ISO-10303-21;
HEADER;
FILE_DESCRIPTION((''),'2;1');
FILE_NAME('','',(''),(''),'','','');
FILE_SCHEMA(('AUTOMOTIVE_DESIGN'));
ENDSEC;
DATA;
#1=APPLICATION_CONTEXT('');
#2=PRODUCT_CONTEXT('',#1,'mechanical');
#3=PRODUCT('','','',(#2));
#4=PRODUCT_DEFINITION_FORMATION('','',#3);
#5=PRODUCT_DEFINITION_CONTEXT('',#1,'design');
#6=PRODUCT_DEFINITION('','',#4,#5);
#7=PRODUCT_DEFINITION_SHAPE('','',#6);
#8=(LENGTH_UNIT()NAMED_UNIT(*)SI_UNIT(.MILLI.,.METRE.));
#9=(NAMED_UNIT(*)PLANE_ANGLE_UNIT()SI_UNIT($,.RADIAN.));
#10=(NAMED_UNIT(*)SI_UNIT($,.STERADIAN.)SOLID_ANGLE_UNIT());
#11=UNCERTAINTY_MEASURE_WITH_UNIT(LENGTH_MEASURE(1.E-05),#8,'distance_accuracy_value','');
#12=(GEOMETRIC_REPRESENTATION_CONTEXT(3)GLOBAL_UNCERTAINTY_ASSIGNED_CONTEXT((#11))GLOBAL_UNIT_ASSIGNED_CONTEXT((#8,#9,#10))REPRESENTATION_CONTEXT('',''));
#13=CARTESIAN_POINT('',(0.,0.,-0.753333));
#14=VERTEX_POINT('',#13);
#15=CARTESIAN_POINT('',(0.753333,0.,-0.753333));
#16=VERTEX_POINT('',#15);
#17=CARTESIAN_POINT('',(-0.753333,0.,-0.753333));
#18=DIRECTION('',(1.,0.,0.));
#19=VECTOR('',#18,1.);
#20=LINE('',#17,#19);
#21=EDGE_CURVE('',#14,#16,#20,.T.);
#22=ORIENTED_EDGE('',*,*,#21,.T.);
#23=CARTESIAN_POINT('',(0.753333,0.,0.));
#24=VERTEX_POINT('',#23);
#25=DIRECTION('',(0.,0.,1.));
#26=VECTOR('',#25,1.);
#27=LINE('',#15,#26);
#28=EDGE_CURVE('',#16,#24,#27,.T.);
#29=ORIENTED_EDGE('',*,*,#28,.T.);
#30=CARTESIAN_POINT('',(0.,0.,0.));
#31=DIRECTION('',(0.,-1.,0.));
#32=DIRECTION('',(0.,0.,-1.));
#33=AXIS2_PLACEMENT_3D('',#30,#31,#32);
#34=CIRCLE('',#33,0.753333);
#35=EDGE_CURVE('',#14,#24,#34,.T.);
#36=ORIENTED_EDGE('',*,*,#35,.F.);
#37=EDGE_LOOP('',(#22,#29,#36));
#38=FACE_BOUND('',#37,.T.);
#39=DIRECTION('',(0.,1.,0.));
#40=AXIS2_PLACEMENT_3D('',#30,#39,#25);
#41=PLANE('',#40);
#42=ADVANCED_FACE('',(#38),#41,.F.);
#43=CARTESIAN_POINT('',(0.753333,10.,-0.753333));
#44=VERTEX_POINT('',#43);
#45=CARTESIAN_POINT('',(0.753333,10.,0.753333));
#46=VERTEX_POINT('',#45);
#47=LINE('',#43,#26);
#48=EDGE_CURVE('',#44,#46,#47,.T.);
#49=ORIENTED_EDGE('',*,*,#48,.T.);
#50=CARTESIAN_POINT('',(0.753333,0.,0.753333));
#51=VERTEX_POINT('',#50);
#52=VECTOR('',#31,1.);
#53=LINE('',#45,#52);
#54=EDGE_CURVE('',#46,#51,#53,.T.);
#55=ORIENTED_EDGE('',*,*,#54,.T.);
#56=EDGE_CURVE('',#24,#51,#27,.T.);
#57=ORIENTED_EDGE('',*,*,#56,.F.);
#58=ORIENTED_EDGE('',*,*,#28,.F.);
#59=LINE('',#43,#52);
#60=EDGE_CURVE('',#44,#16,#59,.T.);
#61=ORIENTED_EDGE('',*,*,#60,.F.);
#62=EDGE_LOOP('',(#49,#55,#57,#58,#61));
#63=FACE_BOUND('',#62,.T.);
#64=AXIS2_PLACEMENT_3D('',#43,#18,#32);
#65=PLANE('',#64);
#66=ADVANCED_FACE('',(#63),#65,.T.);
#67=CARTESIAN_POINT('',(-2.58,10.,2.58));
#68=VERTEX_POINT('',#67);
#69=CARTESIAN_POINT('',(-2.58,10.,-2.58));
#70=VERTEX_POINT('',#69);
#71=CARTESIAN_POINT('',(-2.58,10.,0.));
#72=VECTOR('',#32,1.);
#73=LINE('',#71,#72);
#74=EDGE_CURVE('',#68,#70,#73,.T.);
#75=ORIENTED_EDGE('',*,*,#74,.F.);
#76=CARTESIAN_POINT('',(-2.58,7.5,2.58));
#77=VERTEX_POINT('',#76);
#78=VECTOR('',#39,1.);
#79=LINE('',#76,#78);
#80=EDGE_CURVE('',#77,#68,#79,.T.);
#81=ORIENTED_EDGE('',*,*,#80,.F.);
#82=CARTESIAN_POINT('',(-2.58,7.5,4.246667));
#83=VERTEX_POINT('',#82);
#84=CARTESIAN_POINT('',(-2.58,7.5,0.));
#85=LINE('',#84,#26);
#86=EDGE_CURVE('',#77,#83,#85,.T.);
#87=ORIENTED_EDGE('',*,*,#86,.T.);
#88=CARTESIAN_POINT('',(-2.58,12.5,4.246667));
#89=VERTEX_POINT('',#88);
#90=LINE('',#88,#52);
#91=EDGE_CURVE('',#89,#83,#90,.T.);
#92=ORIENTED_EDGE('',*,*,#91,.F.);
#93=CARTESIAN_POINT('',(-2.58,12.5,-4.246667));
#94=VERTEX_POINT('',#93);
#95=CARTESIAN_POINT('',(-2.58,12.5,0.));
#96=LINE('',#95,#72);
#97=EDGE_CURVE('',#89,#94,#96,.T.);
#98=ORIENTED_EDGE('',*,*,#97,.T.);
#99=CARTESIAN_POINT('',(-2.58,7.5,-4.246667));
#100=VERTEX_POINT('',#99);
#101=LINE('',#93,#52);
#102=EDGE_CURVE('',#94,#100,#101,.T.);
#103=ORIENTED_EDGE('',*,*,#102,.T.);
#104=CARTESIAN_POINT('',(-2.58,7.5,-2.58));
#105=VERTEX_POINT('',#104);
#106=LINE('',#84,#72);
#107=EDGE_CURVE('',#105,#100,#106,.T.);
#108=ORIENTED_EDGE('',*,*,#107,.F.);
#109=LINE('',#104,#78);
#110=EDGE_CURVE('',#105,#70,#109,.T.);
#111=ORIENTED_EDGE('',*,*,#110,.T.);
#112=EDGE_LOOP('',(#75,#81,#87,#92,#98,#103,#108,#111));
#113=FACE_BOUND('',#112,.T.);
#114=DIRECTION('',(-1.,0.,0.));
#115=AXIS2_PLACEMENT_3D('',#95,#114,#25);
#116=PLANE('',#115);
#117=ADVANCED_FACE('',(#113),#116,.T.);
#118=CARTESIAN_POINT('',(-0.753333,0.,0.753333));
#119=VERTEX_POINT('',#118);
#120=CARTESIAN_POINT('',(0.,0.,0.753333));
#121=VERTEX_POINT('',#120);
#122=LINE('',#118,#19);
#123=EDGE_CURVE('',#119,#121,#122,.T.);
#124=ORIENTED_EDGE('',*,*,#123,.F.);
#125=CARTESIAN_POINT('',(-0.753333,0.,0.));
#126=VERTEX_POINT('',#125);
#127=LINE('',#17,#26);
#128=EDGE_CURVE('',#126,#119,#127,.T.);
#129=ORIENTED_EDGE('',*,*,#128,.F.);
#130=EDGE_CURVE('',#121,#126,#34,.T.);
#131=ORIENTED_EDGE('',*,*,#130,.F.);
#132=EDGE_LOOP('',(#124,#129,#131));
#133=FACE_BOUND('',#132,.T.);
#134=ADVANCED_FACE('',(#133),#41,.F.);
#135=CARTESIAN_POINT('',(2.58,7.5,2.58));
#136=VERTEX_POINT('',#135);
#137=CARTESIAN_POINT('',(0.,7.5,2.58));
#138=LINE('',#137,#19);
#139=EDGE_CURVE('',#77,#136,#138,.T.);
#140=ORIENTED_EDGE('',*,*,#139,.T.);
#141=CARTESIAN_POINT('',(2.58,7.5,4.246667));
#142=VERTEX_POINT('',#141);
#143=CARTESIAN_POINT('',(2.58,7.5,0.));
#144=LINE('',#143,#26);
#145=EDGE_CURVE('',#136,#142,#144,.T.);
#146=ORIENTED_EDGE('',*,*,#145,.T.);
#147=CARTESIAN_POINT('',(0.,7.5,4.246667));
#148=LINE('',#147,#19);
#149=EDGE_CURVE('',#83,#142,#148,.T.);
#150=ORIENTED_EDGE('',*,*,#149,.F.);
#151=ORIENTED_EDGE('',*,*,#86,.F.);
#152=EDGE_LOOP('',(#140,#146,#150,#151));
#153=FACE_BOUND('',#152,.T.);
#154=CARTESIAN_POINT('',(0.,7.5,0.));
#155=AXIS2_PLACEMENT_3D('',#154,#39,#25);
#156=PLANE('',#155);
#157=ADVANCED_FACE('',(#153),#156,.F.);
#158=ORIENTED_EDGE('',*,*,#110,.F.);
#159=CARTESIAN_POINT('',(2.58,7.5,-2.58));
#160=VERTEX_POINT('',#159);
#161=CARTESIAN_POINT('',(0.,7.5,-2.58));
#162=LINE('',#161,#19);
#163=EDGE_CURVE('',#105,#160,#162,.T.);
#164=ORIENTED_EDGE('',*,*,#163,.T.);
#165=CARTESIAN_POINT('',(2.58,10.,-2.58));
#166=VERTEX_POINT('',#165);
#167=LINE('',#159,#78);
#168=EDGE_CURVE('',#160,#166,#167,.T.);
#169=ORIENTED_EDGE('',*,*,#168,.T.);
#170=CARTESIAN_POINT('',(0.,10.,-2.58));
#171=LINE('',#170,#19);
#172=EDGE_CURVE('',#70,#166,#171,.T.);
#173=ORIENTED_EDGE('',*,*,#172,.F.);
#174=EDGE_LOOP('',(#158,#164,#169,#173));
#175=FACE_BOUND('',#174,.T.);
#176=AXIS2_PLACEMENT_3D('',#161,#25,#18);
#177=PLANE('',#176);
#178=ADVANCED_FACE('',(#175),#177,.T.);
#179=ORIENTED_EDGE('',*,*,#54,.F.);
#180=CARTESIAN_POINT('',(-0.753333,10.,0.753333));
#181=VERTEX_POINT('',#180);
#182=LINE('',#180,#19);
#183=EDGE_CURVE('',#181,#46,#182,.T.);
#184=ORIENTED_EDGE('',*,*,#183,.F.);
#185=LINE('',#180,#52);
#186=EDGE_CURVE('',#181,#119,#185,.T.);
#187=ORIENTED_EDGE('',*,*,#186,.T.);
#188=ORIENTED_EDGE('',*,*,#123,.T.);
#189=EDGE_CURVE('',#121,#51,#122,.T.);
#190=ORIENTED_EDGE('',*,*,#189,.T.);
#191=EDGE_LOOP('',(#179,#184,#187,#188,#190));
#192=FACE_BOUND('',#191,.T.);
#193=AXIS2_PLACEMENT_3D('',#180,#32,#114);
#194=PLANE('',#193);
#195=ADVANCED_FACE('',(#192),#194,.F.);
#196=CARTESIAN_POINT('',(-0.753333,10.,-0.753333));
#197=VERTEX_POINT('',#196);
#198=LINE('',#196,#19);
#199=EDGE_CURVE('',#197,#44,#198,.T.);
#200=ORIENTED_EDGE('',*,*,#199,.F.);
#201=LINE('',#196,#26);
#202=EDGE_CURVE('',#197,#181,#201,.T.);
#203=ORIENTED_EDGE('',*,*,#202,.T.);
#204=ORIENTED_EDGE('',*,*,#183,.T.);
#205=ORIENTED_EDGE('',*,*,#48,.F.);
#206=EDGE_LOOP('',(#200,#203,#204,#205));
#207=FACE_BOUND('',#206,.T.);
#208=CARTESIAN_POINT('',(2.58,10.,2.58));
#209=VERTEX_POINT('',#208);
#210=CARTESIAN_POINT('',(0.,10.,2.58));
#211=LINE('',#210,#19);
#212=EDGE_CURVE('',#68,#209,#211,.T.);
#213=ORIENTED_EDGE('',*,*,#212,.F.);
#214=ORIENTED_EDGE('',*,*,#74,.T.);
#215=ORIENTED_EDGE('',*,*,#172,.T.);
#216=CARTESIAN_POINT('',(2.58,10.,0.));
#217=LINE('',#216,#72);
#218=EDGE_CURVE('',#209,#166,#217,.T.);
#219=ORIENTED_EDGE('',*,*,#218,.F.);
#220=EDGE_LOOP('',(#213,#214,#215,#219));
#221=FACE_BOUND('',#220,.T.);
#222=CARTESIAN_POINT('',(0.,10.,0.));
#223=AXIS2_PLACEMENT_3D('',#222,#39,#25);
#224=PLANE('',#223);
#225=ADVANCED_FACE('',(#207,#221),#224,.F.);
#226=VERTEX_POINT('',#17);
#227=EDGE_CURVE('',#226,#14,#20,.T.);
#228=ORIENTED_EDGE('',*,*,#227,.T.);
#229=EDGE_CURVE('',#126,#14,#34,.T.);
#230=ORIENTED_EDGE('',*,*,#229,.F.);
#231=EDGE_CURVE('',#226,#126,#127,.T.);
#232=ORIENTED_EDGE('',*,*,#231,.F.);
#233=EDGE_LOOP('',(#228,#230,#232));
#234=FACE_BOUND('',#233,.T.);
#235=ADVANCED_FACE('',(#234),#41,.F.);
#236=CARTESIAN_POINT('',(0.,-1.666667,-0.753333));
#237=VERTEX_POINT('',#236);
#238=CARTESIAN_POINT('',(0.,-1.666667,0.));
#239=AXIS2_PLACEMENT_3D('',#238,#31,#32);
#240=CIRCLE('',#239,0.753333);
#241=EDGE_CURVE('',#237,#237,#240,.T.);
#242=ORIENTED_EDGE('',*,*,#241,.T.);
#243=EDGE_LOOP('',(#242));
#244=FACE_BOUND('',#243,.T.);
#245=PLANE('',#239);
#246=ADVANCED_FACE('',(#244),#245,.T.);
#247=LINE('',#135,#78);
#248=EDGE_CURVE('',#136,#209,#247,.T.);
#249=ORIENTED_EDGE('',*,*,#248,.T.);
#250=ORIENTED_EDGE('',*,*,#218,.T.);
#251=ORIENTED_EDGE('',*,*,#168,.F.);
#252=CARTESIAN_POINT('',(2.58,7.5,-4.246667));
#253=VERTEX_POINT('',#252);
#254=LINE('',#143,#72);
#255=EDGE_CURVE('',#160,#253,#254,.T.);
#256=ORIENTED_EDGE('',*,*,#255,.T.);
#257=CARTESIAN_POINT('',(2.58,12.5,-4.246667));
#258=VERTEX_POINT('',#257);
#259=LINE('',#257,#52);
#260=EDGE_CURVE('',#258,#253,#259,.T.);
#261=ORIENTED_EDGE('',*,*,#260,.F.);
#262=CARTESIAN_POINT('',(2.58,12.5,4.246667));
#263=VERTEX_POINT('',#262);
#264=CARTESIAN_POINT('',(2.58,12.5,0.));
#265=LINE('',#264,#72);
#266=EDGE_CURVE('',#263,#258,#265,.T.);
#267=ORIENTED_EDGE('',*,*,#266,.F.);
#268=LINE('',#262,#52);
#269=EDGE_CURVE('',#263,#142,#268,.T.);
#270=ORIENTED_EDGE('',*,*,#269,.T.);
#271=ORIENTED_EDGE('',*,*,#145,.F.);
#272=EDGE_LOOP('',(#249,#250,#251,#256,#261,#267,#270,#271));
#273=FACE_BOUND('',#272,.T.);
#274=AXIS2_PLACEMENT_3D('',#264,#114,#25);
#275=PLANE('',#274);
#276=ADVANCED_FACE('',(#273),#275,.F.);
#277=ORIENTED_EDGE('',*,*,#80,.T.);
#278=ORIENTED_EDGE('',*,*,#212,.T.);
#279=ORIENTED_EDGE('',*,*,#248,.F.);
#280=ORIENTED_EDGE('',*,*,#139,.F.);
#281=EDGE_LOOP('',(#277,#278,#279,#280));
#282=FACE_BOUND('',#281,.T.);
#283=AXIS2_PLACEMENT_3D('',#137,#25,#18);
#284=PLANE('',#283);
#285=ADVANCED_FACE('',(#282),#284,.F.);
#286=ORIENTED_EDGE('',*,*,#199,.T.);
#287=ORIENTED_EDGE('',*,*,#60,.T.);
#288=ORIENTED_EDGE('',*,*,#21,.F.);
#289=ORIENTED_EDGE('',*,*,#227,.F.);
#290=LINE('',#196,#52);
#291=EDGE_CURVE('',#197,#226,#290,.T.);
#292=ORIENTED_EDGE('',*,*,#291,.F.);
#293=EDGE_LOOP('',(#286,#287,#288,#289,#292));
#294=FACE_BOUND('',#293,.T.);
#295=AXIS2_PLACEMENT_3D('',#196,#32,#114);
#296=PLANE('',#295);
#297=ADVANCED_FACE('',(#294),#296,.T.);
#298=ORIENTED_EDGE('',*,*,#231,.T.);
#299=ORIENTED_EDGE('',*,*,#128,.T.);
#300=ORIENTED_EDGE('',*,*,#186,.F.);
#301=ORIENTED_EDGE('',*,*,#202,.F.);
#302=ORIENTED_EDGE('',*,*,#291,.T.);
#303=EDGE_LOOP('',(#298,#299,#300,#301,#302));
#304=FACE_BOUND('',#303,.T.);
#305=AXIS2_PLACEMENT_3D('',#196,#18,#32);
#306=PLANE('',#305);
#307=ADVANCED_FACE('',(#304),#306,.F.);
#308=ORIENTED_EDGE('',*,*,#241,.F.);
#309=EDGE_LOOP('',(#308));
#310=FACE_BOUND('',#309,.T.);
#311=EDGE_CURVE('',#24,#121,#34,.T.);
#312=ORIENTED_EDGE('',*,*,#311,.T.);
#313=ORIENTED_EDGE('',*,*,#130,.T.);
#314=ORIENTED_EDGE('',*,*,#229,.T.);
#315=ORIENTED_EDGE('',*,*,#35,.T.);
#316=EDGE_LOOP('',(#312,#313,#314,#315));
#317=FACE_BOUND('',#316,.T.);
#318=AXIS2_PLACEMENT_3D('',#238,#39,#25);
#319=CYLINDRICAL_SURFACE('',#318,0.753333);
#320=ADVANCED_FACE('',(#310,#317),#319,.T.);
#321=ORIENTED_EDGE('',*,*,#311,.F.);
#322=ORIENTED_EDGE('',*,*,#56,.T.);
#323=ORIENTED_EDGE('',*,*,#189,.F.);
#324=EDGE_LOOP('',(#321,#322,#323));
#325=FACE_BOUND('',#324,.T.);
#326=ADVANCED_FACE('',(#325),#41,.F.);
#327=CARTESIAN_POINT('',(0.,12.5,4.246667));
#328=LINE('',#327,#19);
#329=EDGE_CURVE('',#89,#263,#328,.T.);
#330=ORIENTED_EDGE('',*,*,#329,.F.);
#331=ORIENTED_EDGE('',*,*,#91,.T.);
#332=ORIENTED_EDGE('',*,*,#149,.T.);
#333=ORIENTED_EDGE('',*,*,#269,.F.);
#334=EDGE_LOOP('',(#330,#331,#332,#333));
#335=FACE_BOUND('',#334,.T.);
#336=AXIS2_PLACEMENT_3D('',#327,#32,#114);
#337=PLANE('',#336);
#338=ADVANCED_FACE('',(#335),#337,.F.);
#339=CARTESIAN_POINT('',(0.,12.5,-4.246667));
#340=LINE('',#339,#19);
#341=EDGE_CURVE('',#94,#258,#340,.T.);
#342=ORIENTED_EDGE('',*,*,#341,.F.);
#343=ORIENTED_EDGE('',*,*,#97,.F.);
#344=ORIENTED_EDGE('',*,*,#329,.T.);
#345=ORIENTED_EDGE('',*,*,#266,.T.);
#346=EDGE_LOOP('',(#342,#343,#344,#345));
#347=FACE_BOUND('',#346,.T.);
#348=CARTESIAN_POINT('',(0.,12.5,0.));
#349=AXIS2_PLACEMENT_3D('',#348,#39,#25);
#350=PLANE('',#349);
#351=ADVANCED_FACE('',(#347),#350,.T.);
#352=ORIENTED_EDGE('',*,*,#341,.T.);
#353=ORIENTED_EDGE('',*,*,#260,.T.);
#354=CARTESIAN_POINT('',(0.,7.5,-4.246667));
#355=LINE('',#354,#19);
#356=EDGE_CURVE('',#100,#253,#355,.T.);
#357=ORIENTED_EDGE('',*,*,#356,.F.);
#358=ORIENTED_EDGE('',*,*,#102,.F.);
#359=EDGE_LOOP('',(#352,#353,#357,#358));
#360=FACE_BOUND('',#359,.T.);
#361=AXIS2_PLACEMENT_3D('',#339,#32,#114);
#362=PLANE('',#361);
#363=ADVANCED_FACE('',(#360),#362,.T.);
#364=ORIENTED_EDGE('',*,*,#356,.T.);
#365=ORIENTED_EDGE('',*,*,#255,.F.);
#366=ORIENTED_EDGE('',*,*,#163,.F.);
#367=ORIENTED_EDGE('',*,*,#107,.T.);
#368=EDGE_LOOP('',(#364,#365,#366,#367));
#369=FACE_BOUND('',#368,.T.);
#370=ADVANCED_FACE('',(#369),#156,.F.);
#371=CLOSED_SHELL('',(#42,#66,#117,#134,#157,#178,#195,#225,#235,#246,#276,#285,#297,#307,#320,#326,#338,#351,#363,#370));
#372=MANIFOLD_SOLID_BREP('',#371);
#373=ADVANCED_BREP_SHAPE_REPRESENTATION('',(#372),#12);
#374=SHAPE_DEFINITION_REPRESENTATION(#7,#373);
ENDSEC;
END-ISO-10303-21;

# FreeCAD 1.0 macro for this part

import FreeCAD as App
import Part
import Sketcher
from FreeCAD import Vector

doc = App.newDocument("Part")
body = doc.addObject("PartDesign::Body", "Body")

# Sketch on XZ plane
sketch1 = body.newObject("Sketcher::SketchObject", "Sketch")
sketch1.AttachmentSupport = (doc.getObject("XZ_Plane"), [""])
sketch1.MapMode = "FlatFace"
sketch1.addGeometry([
    Part.LineSegment(Vector(-0.8, -0.8, 0), Vector(-0.8, 0.8, 0)),
    Part.LineSegment(Vector(-0.8, 0.8, 0), Vector(0.8, 0.8, 0)),
    Part.LineSegment(Vector(0.8, 0.8, 0), Vector(0.8, -0.8, 0)),
    Part.LineSegment(Vector(0.8, -0.8, 0), Vector(-0.8, -0.8, 0)),
], False)
sketch1.addConstraint([
    Sketcher.Constraint("Coincident", 0, 2, 1, 1),
    Sketcher.Constraint("Coincident", 1, 2, 2, 1),
    Sketcher.Constraint("Coincident", 2, 2, 3, 1),
    Sketcher.Constraint("Coincident", 3, 2, 0, 1),
    Sketcher.Constraint("Vertical", 0),
    Sketcher.Constraint("Horizontal", 1),
    Sketcher.Constraint("Vertical", 2),
    Sketcher.Constraint("Horizontal", 3),
    Sketcher.Constraint("Symmetric", 0, 2, 2, 2, -1, 1),
    Sketcher.Constraint("Equal", 3, 0),
    Sketcher.Constraint("DistanceX", 1, 1, 1, 2, 1.506667),
])
pad1 = body.newObject("PartDesign::Pad", "Pad")
pad1.Profile = sketch1
pad1.Length = 10
pad1.Reversed = True

# Sketch on XZ plane
sketch2 = body.newObject("Sketcher::SketchObject", "Sketch001")
sketch2.AttachmentSupport = (doc.getObject("XZ_Plane"), [""])
sketch2.MapMode = "FlatFace"
sketch2.addGeometry(Part.Circle(Vector(0, 0, 0), Vector(0, 0, 1), 0.8), False)
sketch2.addConstraint([
    Sketcher.Constraint("Coincident", 0, 3, -1, 1),
    Sketcher.Constraint("Diameter", 0, 1.506667),
])
pad2 = body.newObject("PartDesign::Pad", "Pad001")
pad2.Profile = sketch2
pad2.Length = 1.666667

# Sketch on XZ plane
sketch3 = body.newObject("Sketcher::SketchObject", "Sketch002")
sketch3.AttachmentSupport = (doc.getObject("XZ_Plane"), [""])
sketch3.MapMode = "FlatFace"
sketch3.AttachmentOffset = App.Placement(Vector(0, 0, -10), App.Rotation())
sketch3.addGeometry([
    Part.LineSegment(Vector(-3, -4, 0), Vector(-3, 4, 0)),
    Part.LineSegment(Vector(-3, 4, 0), Vector(3, 4, 0)),
    Part.LineSegment(Vector(3, 4, 0), Vector(3, -4, 0)),
    Part.LineSegment(Vector(3, -4, 0), Vector(-3, -4, 0)),
], False)
sketch3.addConstraint([
    Sketcher.Constraint("Coincident", 0, 2, 1, 1),
    Sketcher.Constraint("Coincident", 1, 2, 2, 1),
    Sketcher.Constraint("Coincident", 2, 2, 3, 1),
    Sketcher.Constraint("Coincident", 3, 2, 0, 1),
    Sketcher.Constraint("Vertical", 0),
    Sketcher.Constraint("Horizontal", 1),
    Sketcher.Constraint("Vertical", 2),
    Sketcher.Constraint("Horizontal", 3),
    Sketcher.Constraint("Symmetric", 0, 2, 2, 2, -1, 1),
    Sketcher.Constraint("DistanceX", 1, 1, 1, 2, 5.16),
    Sketcher.Constraint("DistanceY", 0, 1, 0, 2, 8.493333),
])
pad3 = body.newObject("PartDesign::Pad", "Pad002")
pad3.Profile = sketch3
pad3.Length = 2.5
pad3.Reversed = True

# Sketch on XZ plane
sketch4 = body.newObject("Sketcher::SketchObject", "Sketch003")
sketch4.AttachmentSupport = (doc.getObject("XZ_Plane"), [""])
sketch4.MapMode = "FlatFace"
sketch4.AttachmentOffset = App.Placement(Vector(0, 0, -10), App.Rotation())
sketch4.addGeometry([
    Part.LineSegment(Vector(-2.6, -4.2, 0), Vector(-2.6, -2.6, 0)),  # 0
    Part.LineSegment(Vector(-2.6, -2.6, 0), Vector(2.6, -2.6, 0)),  # 1
    Part.LineSegment(Vector(2.6, -2.6, 0), Vector(2.6, -4.2, 0)),  # 2
    Part.LineSegment(Vector(2.6, -4.2, 0), Vector(-2.6, -4.2, 0)),  # 3
    Part.LineSegment(Vector(-2.6, 2.6, 0), Vector(-2.6, 4.2, 0)),  # 4
    Part.LineSegment(Vector(-2.6, 4.2, 0), Vector(2.6, 4.2, 0)),  # 5
    Part.LineSegment(Vector(2.6, 4.2, 0), Vector(2.6, 2.6, 0)),  # 6
    Part.LineSegment(Vector(2.6, 2.6, 0), Vector(-2.6, 2.6, 0)),  # 7
], False)
sketch4.addConstraint([
    Sketcher.Constraint("Coincident", 0, 2, 1, 1),
    Sketcher.Constraint("Coincident", 1, 2, 2, 1),
    Sketcher.Constraint("Coincident", 2, 2, 3, 1),
    Sketcher.Constraint("Coincident", 3, 2, 0, 1),
    Sketcher.Constraint("Coincident", 4, 2, 5, 1),
    Sketcher.Constraint("Coincident", 5, 2, 6, 1),
    Sketcher.Constraint("Coincident", 6, 2, 7, 1),
    Sketcher.Constraint("Coincident", 7, 2, 4, 1),
    Sketcher.Constraint("Vertical", 0),
    Sketcher.Constraint("Horizontal", 1),
    Sketcher.Constraint("Vertical", 2),
    Sketcher.Constraint("Horizontal", 3),
    Sketcher.Constraint("Vertical", 4),
    Sketcher.Constraint("Horizontal", 5),
    Sketcher.Constraint("Vertical", 6),
    Sketcher.Constraint("Horizontal", 7),
    Sketcher.Constraint("Symmetric", 2, 2, 4, 2, -1, 1),
    Sketcher.Constraint("Symmetric", 0, 2, 6, 2, -1, 1),
    Sketcher.Constraint("Vertical", 3, 2, 4, 2),
    Sketcher.Constraint("DistanceX", 1, 1, 1, 2, 5.16),
    Sketcher.Constraint("DistanceY", 0, 2, -1, 1, 2.58),
    Sketcher.Constraint("DistanceY", 0, 1, 0, 2, 1.666667),
])
pad4 = body.newObject("PartDesign::Pad", "Pad003")
pad4.Profile = sketch4
pad4.Length = 2.5

doc.recompute()
